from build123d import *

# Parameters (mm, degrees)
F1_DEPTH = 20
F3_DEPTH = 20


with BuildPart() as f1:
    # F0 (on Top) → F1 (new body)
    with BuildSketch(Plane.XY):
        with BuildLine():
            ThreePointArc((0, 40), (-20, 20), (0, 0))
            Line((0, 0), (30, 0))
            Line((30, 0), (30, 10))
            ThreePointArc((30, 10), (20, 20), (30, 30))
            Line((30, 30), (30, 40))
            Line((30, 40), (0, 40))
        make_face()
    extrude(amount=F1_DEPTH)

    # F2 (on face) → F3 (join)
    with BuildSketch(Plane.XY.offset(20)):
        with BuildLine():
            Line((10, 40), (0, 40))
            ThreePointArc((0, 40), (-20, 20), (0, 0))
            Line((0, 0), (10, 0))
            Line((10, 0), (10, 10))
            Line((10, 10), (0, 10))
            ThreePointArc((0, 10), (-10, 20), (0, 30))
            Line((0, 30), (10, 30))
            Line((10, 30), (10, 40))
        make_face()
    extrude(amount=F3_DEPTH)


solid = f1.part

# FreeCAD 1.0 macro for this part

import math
import FreeCAD as App
import Part
import Sketcher
from FreeCAD import Vector

doc = App.newDocument("Part")
body = doc.addObject("PartDesign::Body", "Body")

sketch1 = doc.addObject("Sketcher::SketchObject", "Sketch")
body.addObject(sketch1)
sketch1.AttachmentSupport = (doc.XY_Plane, [""])
sketch1.MapMode = "FlatFace"
sketch1.addGeometry(Part.ArcOfCircle(Part.Circle(Vector(0, 20, 0), Vector(0, 0, 1), 20), math.radians(90), math.radians(270)), False)
sketch1.addGeometry(Part.LineSegment(Vector(0, 0, 0), Vector(30, 0, 0)), False)
sketch1.addGeometry(Part.LineSegment(Vector(30, 0, 0), Vector(30, 10, 0)), False)
sketch1.addGeometry(Part.ArcOfCircle(Part.Circle(Vector(30, 20, 0), Vector(0, 0, 1), 10), math.radians(90), math.radians(270)), False)
sketch1.addGeometry(Part.LineSegment(Vector(30, 30, 0), Vector(30, 40, 0)), False)
sketch1.addGeometry(Part.LineSegment(Vector(30, 40, 0), Vector(0, 40, 0)), False)
sketch1.addConstraint(Sketcher.Constraint("Tangent", 0, 2, 1, 1))
sketch1.addConstraint(Sketcher.Constraint("Coincident", 1, 2, 2, 1))
sketch1.addConstraint(Sketcher.Constraint("Coincident", 2, 2, 3, 2))
sketch1.addConstraint(Sketcher.Constraint("Coincident", 3, 1, 4, 1))
sketch1.addConstraint(Sketcher.Constraint("Coincident", 4, 2, 5, 1))
sketch1.addConstraint(Sketcher.Constraint("Tangent", 5, 2, 0, 1))
sketch1.addConstraint(Sketcher.Constraint("Horizontal", 1))
sketch1.addConstraint(Sketcher.Constraint("Vertical", 2))
sketch1.addConstraint(Sketcher.Constraint("Vertical", 4))
sketch1.addConstraint(Sketcher.Constraint("Horizontal", 5))
sketch1.addConstraint(Sketcher.Constraint("Coincident", 0, 2, -1, 1))
sketch1.addConstraint(Sketcher.Constraint("Horizontal", 0, 3, 3, 3))
sketch1.addConstraint(Sketcher.Constraint("Vertical", 3, 3, 1, 2))
sketch1.addConstraint(Sketcher.Constraint("Vertical", 2, 2, 3, 1))
sketch1.addConstraint(Sketcher.Constraint("Radius", 0, 20.0))
sketch1.addConstraint(Sketcher.Constraint("Radius", 3, 10.0))
sketch1.addConstraint(Sketcher.Constraint("DistanceX", 1, 1, 1, 2, 30.0))
pad1 = doc.addObject("PartDesign::Pad", "Pad")
body.addObject(pad1)
pad1.Profile = sketch1
pad1.Length = 20

sketch2 = doc.addObject("Sketcher::SketchObject", "Sketch001")
body.addObject(sketch2)
sketch2.AttachmentSupport = (doc.XY_Plane, [""])
sketch2.MapMode = "FlatFace"
sketch2.AttachmentOffset = App.Placement(Vector(0, 0, 20), App.Rotation())
sketch2.addGeometry(Part.LineSegment(Vector(10, 40, 0), Vector(0, 40, 0)), False)
sketch2.addGeometry(Part.ArcOfCircle(Part.Circle(Vector(0, 20, 0), Vector(0, 0, 1), 20), math.radians(90), math.radians(270)), False)
sketch2.addGeometry(Part.LineSegment(Vector(0, 0, 0), Vector(10, 0, 0)), False)
sketch2.addGeometry(Part.LineSegment(Vector(10, 0, 0), Vector(10, 10, 0)), False)
sketch2.addGeometry(Part.LineSegment(Vector(10, 10, 0), Vector(0, 10, 0)), False)
sketch2.addGeometry(Part.ArcOfCircle(Part.Circle(Vector(0, 20, 0), Vector(0, 0, 1), 10), math.radians(90), math.radians(270)), False)
sketch2.addGeometry(Part.LineSegment(Vector(0, 30, 0), Vector(10, 30, 0)), False)
sketch2.addGeometry(Part.LineSegment(Vector(10, 30, 0), Vector(10, 40, 0)), False)
sketch2.addConstraint(Sketcher.Constraint("Tangent", 0, 2, 1, 1))
sketch2.addConstraint(Sketcher.Constraint("Tangent", 1, 2, 2, 1))
sketch2.addConstraint(Sketcher.Constraint("Coincident", 2, 2, 3, 1))
sketch2.addConstraint(Sketcher.Constraint("Coincident", 3, 2, 4, 1))
sketch2.addConstraint(Sketcher.Constraint("Tangent", 4, 2, 5, 2))
sketch2.addConstraint(Sketcher.Constraint("Tangent", 5, 1, 6, 1))
sketch2.addConstraint(Sketcher.Constraint("Coincident", 6, 2, 7, 1))
sketch2.addConstraint(Sketcher.Constraint("Coincident", 7, 2, 0, 1))
sketch2.addConstraint(Sketcher.Constraint("Horizontal", 0))
sketch2.addConstraint(Sketcher.Constraint("Horizontal", 2))
sketch2.addConstraint(Sketcher.Constraint("Vertical", 3))
sketch2.addConstraint(Sketcher.Constraint("Horizontal", 4))
sketch2.addConstraint(Sketcher.Constraint("Horizontal", 6))
sketch2.addConstraint(Sketcher.Constraint("Vertical", 7))
sketch2.addConstraint(Sketcher.Constraint("Coincident", 1, 2, -1, 1))
sketch2.addConstraint(Sketcher.Constraint("Coincident", 5, 3, 1, 3))
sketch2.addConstraint(Sketcher.Constraint("Vertical", 3, 2, 6, 2))
sketch2.addConstraint(Sketcher.Constraint("Equal", 6, 3))
sketch2.addConstraint(Sketcher.Constraint("Radius", 1, 20.0))
sketch2.addConstraint(Sketcher.Constraint("Radius", 5, 10.0))
pad2 = doc.addObject("PartDesign::Pad", "Pad001")
body.addObject(pad2)
pad2.Profile = sketch2
pad2.Length = 20

doc.recompute()
